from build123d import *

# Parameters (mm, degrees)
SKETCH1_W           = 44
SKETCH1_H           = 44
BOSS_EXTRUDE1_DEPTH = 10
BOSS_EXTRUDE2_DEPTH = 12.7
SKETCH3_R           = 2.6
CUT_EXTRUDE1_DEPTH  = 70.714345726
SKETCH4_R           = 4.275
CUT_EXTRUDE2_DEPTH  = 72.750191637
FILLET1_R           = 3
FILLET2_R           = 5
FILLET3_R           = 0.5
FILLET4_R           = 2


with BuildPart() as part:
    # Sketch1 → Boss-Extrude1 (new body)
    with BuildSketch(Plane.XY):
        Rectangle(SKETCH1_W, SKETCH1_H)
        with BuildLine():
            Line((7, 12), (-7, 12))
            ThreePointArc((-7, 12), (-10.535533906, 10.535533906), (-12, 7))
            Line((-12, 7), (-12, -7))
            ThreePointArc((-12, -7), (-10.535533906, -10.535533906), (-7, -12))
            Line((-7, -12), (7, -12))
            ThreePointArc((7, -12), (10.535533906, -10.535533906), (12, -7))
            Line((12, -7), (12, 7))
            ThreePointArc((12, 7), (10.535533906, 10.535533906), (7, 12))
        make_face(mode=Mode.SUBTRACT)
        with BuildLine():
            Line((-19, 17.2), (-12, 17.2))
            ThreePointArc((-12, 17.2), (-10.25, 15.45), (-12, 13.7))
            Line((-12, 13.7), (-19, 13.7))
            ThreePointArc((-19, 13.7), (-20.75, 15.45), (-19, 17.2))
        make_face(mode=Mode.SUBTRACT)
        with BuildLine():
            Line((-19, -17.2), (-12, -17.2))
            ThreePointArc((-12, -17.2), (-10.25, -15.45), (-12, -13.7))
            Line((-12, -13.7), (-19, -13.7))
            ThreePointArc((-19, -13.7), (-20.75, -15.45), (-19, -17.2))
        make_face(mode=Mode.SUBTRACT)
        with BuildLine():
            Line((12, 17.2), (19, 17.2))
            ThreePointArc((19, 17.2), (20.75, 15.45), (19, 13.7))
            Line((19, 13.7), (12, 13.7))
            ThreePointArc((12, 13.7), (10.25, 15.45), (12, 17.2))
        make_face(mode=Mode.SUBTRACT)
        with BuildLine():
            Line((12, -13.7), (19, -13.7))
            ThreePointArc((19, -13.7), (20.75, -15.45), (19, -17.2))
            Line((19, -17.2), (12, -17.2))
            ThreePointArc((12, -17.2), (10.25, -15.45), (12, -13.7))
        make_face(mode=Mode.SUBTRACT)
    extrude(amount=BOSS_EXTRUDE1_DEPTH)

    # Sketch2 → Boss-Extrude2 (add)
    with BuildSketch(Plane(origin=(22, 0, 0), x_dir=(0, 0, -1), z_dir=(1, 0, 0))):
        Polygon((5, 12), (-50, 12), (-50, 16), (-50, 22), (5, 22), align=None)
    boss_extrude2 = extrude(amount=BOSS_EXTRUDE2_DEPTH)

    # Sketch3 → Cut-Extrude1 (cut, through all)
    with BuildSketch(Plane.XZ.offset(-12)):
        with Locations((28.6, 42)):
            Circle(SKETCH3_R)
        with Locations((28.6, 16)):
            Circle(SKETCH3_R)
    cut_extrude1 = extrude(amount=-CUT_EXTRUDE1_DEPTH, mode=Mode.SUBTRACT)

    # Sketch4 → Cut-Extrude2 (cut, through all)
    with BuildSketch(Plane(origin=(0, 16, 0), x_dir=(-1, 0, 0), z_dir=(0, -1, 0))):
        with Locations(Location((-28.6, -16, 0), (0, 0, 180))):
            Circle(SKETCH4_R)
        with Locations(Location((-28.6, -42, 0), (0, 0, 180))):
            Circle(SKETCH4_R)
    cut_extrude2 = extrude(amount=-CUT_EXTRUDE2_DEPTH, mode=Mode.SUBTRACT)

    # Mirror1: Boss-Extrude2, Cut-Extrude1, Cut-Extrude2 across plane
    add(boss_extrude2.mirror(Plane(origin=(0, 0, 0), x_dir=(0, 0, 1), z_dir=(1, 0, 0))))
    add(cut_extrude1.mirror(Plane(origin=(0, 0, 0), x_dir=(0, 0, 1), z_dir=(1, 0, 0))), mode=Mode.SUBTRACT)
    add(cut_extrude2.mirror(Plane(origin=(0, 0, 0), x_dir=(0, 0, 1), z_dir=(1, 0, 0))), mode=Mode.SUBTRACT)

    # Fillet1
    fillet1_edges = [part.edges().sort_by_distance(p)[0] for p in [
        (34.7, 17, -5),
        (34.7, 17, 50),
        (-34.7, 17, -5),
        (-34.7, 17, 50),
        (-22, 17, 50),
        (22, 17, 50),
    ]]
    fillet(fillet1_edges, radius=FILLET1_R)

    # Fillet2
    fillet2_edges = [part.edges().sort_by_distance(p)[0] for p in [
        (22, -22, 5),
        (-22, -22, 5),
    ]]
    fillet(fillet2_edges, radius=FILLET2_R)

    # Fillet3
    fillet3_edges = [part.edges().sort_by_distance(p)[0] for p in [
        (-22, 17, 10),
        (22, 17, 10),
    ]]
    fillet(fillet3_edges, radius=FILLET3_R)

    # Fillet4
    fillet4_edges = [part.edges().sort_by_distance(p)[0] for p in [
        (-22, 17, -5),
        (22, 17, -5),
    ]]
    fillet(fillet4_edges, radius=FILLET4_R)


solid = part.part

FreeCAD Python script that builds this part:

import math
import FreeCAD as App
import Part
import Sketcher
Q = App.Units.Quantity


def edges_at(feature, points):
    """Names of the edges that pass closest to the given points."""
    edges = feature.Shape.Edges
    near = lambda p: min(range(len(edges)), key=lambda i: edges[i].distToShape(Part.Vertex(*p))[0])
    return sorted({f"Edge{near(p) + 1}" for p in points})

doc = App.newDocument("Part")
body = doc.addObject("PartDesign::Body", "Body")

# Sketch on XY plane
sketch1 = doc.addObject("Sketcher::SketchObject", "Sketch")
body.addObject(sketch1)
sketch1.AttachmentSupport = (doc.XY_Plane, [""])
sketch1.MapMode = "FlatFace"
sketch1.addGeometry([
    Part.LineSegment(App.Vector(-22, 22, 0), App.Vector(-22, -22, 0)),  # 0
    Part.LineSegment(App.Vector(-22, -22, 0), App.Vector(22, -22, 0)),  # 1
    Part.LineSegment(App.Vector(22, -22, 0), App.Vector(22, 22, 0)),  # 2
    Part.LineSegment(App.Vector(22, 22, 0), App.Vector(-22, 22, 0)),  # 3
    Part.LineSegment(App.Vector(-12, -17.2, 0), App.Vector(-19, -17.2, 0)),  # 4
    Part.ArcOfCircle(Part.Circle(App.Vector(-19, -15.45, 0), App.Vector(0, 0, 1), 1.75), math.radians(90), math.radians(270)),  # 5
    Part.LineSegment(App.Vector(-19, -13.7, 0), App.Vector(-12, -13.7, 0)),  # 6
    Part.ArcOfCircle(Part.Circle(App.Vector(-12, -15.45, 0), App.Vector(0, 0, 1), 1.75), math.radians(-90), math.radians(90)),  # 7
    Part.ArcOfCircle(Part.Circle(App.Vector(12, -15.45, 0), App.Vector(0, 0, 1), 1.75), math.radians(90), math.radians(270)),  # 8
    Part.LineSegment(App.Vector(12, -13.7, 0), App.Vector(19, -13.7, 0)),  # 9
    Part.ArcOfCircle(Part.Circle(App.Vector(19, -15.45, 0), App.Vector(0, 0, 1), 1.75), math.radians(-90), math.radians(90)),  # 10
    Part.LineSegment(App.Vector(19, -17.2, 0), App.Vector(12, -17.2, 0)),  # 11
    Part.ArcOfCircle(Part.Circle(App.Vector(-19, 15.45, 0), App.Vector(0, 0, 1), 1.75), math.radians(90), math.radians(270)),  # 12
    Part.LineSegment(App.Vector(-19, 17.2, 0), App.Vector(-12, 17.2, 0)),  # 13
    Part.ArcOfCircle(Part.Circle(App.Vector(-12, 15.45, 0), App.Vector(0, 0, 1), 1.75), math.radians(-90), math.radians(90)),  # 14
    Part.LineSegment(App.Vector(-12, 13.7, 0), App.Vector(-19, 13.7, 0)),  # 15
    Part.LineSegment(App.Vector(-7, 12, 0), App.Vector(7, 12, 0)),  # 16
    Part.ArcOfCircle(Part.Circle(App.Vector(7, 7, 0), App.Vector(0, 0, 1), 5), math.radians(0), math.radians(90)),  # 17
    Part.LineSegment(App.Vector(12, 7, 0), App.Vector(12, -7, 0)),  # 18
    Part.ArcOfCircle(Part.Circle(App.Vector(7, -7, 0), App.Vector(0, 0, 1), 5), math.radians(-90), math.radians(0)),  # 19
    Part.LineSegment(App.Vector(7, -12, 0), App.Vector(-7, -12, 0)),  # 20
    Part.ArcOfCircle(Part.Circle(App.Vector(-7, -7, 0), App.Vector(0, 0, 1), 5), math.radians(180), math.radians(270)),  # 21
    Part.LineSegment(App.Vector(-12, -7, 0), App.Vector(-12, 7, 0)),  # 22
    Part.ArcOfCircle(Part.Circle(App.Vector(-7, 7, 0), App.Vector(0, 0, 1), 5), math.radians(90), math.radians(180)),  # 23
    Part.ArcOfCircle(Part.Circle(App.Vector(12, 15.45, 0), App.Vector(0, 0, 1), 1.75), math.radians(90), math.radians(270)),  # 24
    Part.LineSegment(App.Vector(12, 17.2, 0), App.Vector(19, 17.2, 0)),  # 25
    Part.ArcOfCircle(Part.Circle(App.Vector(19, 15.45, 0), App.Vector(0, 0, 1), 1.75), math.radians(-90), math.radians(90)),  # 26
    Part.LineSegment(App.Vector(19, 13.7, 0), App.Vector(12, 13.7, 0)),  # 27
], False)
sketch1.addConstraint([
    Sketcher.Constraint("Coincident", 0, 2, 1, 1),
    Sketcher.Constraint("Coincident", 1, 2, 2, 1),
    Sketcher.Constraint("Coincident", 2, 2, 3, 1),
    Sketcher.Constraint("Coincident", 3, 2, 0, 1),
    Sketcher.Constraint("Tangent", 4, 2, 5, 2),
    Sketcher.Constraint("Tangent", 5, 1, 6, 1),
    Sketcher.Constraint("Tangent", 6, 2, 7, 2),
    Sketcher.Constraint("Tangent", 7, 1, 4, 1),
    Sketcher.Constraint("Tangent", 8, 1, 9, 1),
    Sketcher.Constraint("Tangent", 9, 2, 10, 2),
    Sketcher.Constraint("Tangent", 10, 1, 11, 1),
    Sketcher.Constraint("Tangent", 11, 2, 8, 2),
    Sketcher.Constraint("Tangent", 12, 1, 13, 1),
    Sketcher.Constraint("Tangent", 13, 2, 14, 2),
    Sketcher.Constraint("Tangent", 14, 1, 15, 1),
    Sketcher.Constraint("Tangent", 15, 2, 12, 2),
    Sketcher.Constraint("Tangent", 16, 2, 17, 2),
    Sketcher.Constraint("Tangent", 17, 1, 18, 1),
    Sketcher.Constraint("Tangent", 18, 2, 19, 2),
    Sketcher.Constraint("Tangent", 19, 1, 20, 1),
    Sketcher.Constraint("Tangent", 20, 2, 21, 2),
    Sketcher.Constraint("Tangent", 21, 1, 22, 1),
    Sketcher.Constraint("Tangent", 22, 2, 23, 2),
    Sketcher.Constraint("Tangent", 23, 1, 16, 1),
    Sketcher.Constraint("Tangent", 24, 1, 25, 1),
    Sketcher.Constraint("Tangent", 25, 2, 26, 2),
    Sketcher.Constraint("Tangent", 26, 1, 27, 1),
    Sketcher.Constraint("Tangent", 27, 2, 24, 2),
    Sketcher.Constraint("Vertical", 0),
    Sketcher.Constraint("Horizontal", 1),
    Sketcher.Constraint("Vertical", 2),
    Sketcher.Constraint("Horizontal", 3),
    Sketcher.Constraint("Horizontal", 4),
    Sketcher.Constraint("Horizontal", 6),
    Sketcher.Constraint("Horizontal", 9),
    Sketcher.Constraint("Horizontal", 11),
    Sketcher.Constraint("Horizontal", 13),
    Sketcher.Constraint("Horizontal", 15),
    Sketcher.Constraint("Horizontal", 16),
    Sketcher.Constraint("Vertical", 18),
    Sketcher.Constraint("Horizontal", 20),
    Sketcher.Constraint("Vertical", 22),
    Sketcher.Constraint("Horizontal", 25),
    Sketcher.Constraint("Horizontal", 27),
    Sketcher.Constraint("Equal", 7, 8),
    Sketcher.Constraint("Equal", 10, 12),
    Sketcher.Constraint("Equal", 17, 19),
    Sketcher.Constraint("Equal", 19, 21),
    Sketcher.Constraint("Equal", 21, 23),
    Sketcher.Constraint("Equal", 14, 24),
    Sketcher.Constraint("Symmetric", 10, 3, 12, 3, -1, 1),
    Sketcher.Constraint("Symmetric", 17, 3, 21, 3, -1, 1),
    Sketcher.Constraint("Symmetric", 7, 3, 24, 3, -1, 1),
    Sketcher.Constraint("Symmetric", 0, 2, 2, 2, -1, 1),
    Sketcher.Constraint("Symmetric", 7, 3, 8, 3, -2),
    Sketcher.Constraint("Vertical", 5, 3, 12, 3),
    Sketcher.Constraint("Vertical", 7, 3, 14, 3),
    Sketcher.Constraint("Vertical", 10, 3, 26, 3),
    Sketcher.Constraint("Vertical", 11, 2, 17, 1),
    Sketcher.Constraint("Equal", 3, 0),
    Sketcher.Constraint("Equal", 20, 18),
    Sketcher.Constraint("Radius", 17, Q("5 mm")),
    Sketcher.Constraint("DistanceX", 1, 1, 1, 2, Q("44 mm")),
    Sketcher.Constraint("DistanceX", 4, 2, 4, 1, Q("7 mm")),
    Sketcher.Constraint("DistanceX", 16, 1, 16, 2, Q("14 mm")),
    Sketcher.Constraint("Radius", 5, Q("1.75 mm")),
    Sketcher.Constraint("DistanceY", 4, 2, -1, 1, Q("17.2 mm")),
])
pad1 = doc.addObject("PartDesign::Pad", "Pad")
body.addObject(pad1)
pad1.Profile = sketch1
pad1.Length = 10

# Sketch on YZ plane
sketch2 = doc.addObject("Sketcher::SketchObject", "Sketch001")
body.addObject(sketch2)
sketch2.AttachmentSupport = (doc.YZ_Plane, [""])
sketch2.MapMode = "FlatFace"
sketch2.AttachmentOffset = App.Placement(App.Vector(0, 0, 22), App.Rotation())
sketch2.addGeometry([
    Part.LineSegment(App.Vector(12, 50, 0), App.Vector(12, -5, 0)),
    Part.LineSegment(App.Vector(12, -5, 0), App.Vector(22, -5, 0)),
    Part.LineSegment(App.Vector(22, -5, 0), App.Vector(22, 50, 0)),
    Part.LineSegment(App.Vector(22, 50, 0), App.Vector(12, 50, 0)),
], False)
sketch2.addConstraint([
    Sketcher.Constraint("Coincident", 0, 2, 1, 1),
    Sketcher.Constraint("Coincident", 1, 2, 2, 1),
    Sketcher.Constraint("Coincident", 2, 2, 3, 1),
    Sketcher.Constraint("Coincident", 3, 2, 0, 1),
    Sketcher.Constraint("Vertical", 0),
    Sketcher.Constraint("Horizontal", 1),
    Sketcher.Constraint("Vertical", 2),
    Sketcher.Constraint("Horizontal", 3),
    Sketcher.Constraint("DistanceX", 1, 1, 1, 2, Q("10 mm")),
    Sketcher.Constraint("DistanceY", 0, 2, 0, 1, Q("55 mm")),
    Sketcher.Constraint("DistanceX", -1, 1, 0, 2, Q("12 mm")),
    Sketcher.Constraint("DistanceY", 0, 2, -1, 1, Q("5 mm")),
])
pad2 = doc.addObject("PartDesign::Pad", "Pad001")
body.addObject(pad2)
pad2.Profile = sketch2
pad2.Length = 12.7

# Sketch on XZ plane
sketch3 = doc.addObject("Sketcher::SketchObject", "Sketch002")
body.addObject(sketch3)
sketch3.AttachmentSupport = (doc.XZ_Plane, [""])
sketch3.MapMode = "FlatFace"
sketch3.AttachmentOffset = App.Placement(App.Vector(0, 0, -12), App.Rotation())
sketch3.addGeometry([
    Part.Circle(App.Vector(28.6, 42, 0), App.Vector(0, 0, 1), 2.6),
    Part.Circle(App.Vector(28.6, 16, 0), App.Vector(0, 0, 1), 2.6),
], False)
sketch3.addConstraint([
    Sketcher.Constraint("Equal", 0, 1),
    Sketcher.Constraint("Vertical", 0, 3, 1, 3),
    Sketcher.Constraint("Diameter", 0, Q("5.2 mm")),
    Sketcher.Constraint("DistanceY", -1, 1, 0, 3, Q("42 mm")),
    Sketcher.Constraint("DistanceY", -1, 1, 1, 3, Q("16 mm")),
    Sketcher.Constraint("DistanceX", -1, 1, 0, 3, Q("28.6 mm")),
])
pocket1 = doc.addObject("PartDesign::Pocket", "Pocket")
body.addObject(pocket1)
pocket1.Profile = sketch3
pocket1.Type = "ThroughAll"

# Sketch on XZ plane
sketch4 = doc.addObject("Sketcher::SketchObject", "Sketch003")
body.addObject(sketch4)
sketch4.AttachmentSupport = (doc.XZ_Plane, [""])
sketch4.MapMode = "FlatFace"
sketch4.AttachmentOffset = App.Placement(App.Vector(0, 0, -16), App.Rotation())
sketch4.addGeometry([
    Part.Circle(App.Vector(28.6, 16, 0), App.Vector(0, 0, 1), 4.275),
    Part.Circle(App.Vector(28.6, 42, 0), App.Vector(0, 0, 1), 4.275),
], False)
sketch4.addConstraint([
    Sketcher.Constraint("Equal", 0, 1),
    Sketcher.Constraint("Vertical", 0, 3, 1, 3),
    Sketcher.Constraint("Diameter", 0, Q("8.55 mm")),
    Sketcher.Constraint("DistanceY", -1, 1, 0, 3, Q("16 mm")),
    Sketcher.Constraint("DistanceY", -1, 1, 1, 3, Q("42 mm")),
    Sketcher.Constraint("DistanceX", -1, 1, 0, 3, Q("28.6 mm")),
])
pocket2 = doc.addObject("PartDesign::Pocket", "Pocket001")
body.addObject(pocket2)
pocket2.Profile = sketch4
pocket2.Type = "ThroughAll"
doc.recompute()

mirrored = doc.addObject("PartDesign::Mirrored", "Mirrored")
body.addObject(mirrored)
mirrored.Originals = [pad2, pocket1, pocket2]
mirrored.MirrorPlane = (doc.YZ_Plane, [""])
body.Tip = mirrored
doc.recompute()

fillet = doc.addObject("PartDesign::Fillet", "Fillet")
body.addObject(fillet)
fillet.Base = (mirrored, edges_at(mirrored, [
    (34.7, 17, -5),
    (34.7, 17, 50),
    (-34.7, 17, -5),
    (-34.7, 17, 50),
    (-22, 17, 50),
    (22, 17, 50),
]))
fillet.Radius = 3
doc.recompute()

fillet2 = doc.addObject("PartDesign::Fillet", "Fillet001")
body.addObject(fillet2)
fillet2.Base = (fillet, edges_at(fillet, [(22, -22, 5), (-22, -22, 5)]))
fillet2.Radius = 5
doc.recompute()

fillet3 = doc.addObject("PartDesign::Fillet", "Fillet002")
body.addObject(fillet3)
fillet3.Base = (fillet2, edges_at(fillet2, [(-22, 17, 10), (22, 17, 10)]))
fillet3.Radius = 0.5
doc.recompute()

fillet4 = doc.addObject("PartDesign::Fillet", "Fillet003")
body.addObject(fillet4)
fillet4.Base = (fillet3, edges_at(fillet3, [(-22, 17, -5), (22, 17, -5)]))
fillet4.Radius = 2

doc.recompute()
